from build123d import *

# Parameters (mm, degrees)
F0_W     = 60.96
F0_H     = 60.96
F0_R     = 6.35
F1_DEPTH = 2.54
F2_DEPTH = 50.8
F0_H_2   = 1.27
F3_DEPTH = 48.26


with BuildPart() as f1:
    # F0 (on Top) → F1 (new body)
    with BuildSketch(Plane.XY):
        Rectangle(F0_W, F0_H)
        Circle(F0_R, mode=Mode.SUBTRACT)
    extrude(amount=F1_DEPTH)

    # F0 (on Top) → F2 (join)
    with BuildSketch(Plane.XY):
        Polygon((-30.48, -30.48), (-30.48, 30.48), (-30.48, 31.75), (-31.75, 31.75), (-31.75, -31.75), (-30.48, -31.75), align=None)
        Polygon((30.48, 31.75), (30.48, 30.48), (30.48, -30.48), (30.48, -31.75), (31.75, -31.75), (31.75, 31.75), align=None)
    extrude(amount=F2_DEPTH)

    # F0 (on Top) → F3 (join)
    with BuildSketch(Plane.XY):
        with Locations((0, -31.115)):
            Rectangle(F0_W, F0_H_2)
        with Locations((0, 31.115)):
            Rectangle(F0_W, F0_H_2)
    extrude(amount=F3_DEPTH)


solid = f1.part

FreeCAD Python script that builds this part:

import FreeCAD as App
import Part
import Sketcher
from FreeCAD import Vector
Q = App.Units.Quantity


def add_polygon(sketch, points):
    """Adds a closed chain of lines whose ends are joined by coincident constraints."""
    first, n = sketch.GeometryCount, len(points)
    for a, b in zip(points, points[1:] + points[:1]):
        sketch.addGeometry(Part.LineSegment(App.Vector(*a, 0), App.Vector(*b, 0)), False)
    for i in range(n):
        sketch.addConstraint(Sketcher.Constraint("Coincident", first + i, 2, first + (i + 1) % n, 1))

doc = App.newDocument("Part")
params = doc.addObject("Spreadsheet::Sheet", "Params")
for row, (alias, value) in enumerate([
    ("sketch1_diameter", "0.5 in"),
    ("sketch1_width", "2.4 in"),
    ("pad1_length", "0.1 in"),
    ("sketch2_height", "2.5 in"),
    ("sketch2_width", "0.05 in"),
    ("pad2_length", "2 in"),
    ("sketch3_width", "2.4 in"),
    ("sketch3_height", "0.05 in"),
    ("pad3_length", "1.9 in"),
], start=1):
    params.set(f"A{row}", alias)
    params.set(f"B{row}", "=" + value)
    params.setAlias(f"B{row}", alias)

body = doc.addObject("PartDesign::Body", "Body")

sketch1 = body.newObject("Sketcher::SketchObject", "Sketch")
sketch1.AttachmentSupport = (doc.getObject("XY_Plane"), [""])
sketch1.MapMode = "FlatFace"
add_polygon(sketch1, [(-30, 30), (-30, -30), (30, -30), (30, 30)])
sketch1.addGeometry(Part.Circle(Vector(0, 0, 0), Vector(0, 0, 1), 6), False)
sketch1.addConstraint(Sketcher.Constraint("Vertical", 0))
sketch1.addConstraint(Sketcher.Constraint("Horizontal", 1))
sketch1.addConstraint(Sketcher.Constraint("Vertical", 2))
sketch1.addConstraint(Sketcher.Constraint("Horizontal", 3))
sketch1.addConstraint(Sketcher.Constraint("Coincident", 4, 3, -1, 1))
sketch1.addConstraint(Sketcher.Constraint("Symmetric", 0, 2, 2, 2, -1, 1))
sketch1.addConstraint(Sketcher.Constraint("Equal", 3, 0))
sketch1.addConstraint(Sketcher.Constraint("Diameter", 4, Q("0.5 in")))
sketch1.addConstraint(Sketcher.Constraint("DistanceX", 1, 1, 1, 2, Q("2.4 in")))
sketch1.setExpression("Constraints[11]", "Params.sketch1_diameter")
sketch1.setExpression("Constraints[12]", "Params.sketch1_width")
pad1 = body.newObject("PartDesign::Pad", "Pad")
pad1.Profile = sketch1
pad1.setExpression("Length", "Params.pad1_length")

sketch2 = body.newObject("Sketcher::SketchObject", "Sketch001")
sketch2.AttachmentSupport = (doc.getObject("XY_Plane"), [""])
sketch2.MapMode = "FlatFace"
add_polygon(sketch2, [(-30.5, 31.8), (-31.8, 31.8), (-31.8, -31.8), (-30.5, -31.8)])
add_polygon(sketch2, [(30.5, 31.8), (30.5, -31.8), (31.8, -31.8), (31.8, 31.8)])
sketch2.addConstraint(Sketcher.Constraint("Horizontal", 0))
sketch2.addConstraint(Sketcher.Constraint("Vertical", 1))
sketch2.addConstraint(Sketcher.Constraint("Horizontal", 2))
sketch2.addConstraint(Sketcher.Constraint("Vertical", 3))
sketch2.addConstraint(Sketcher.Constraint("Vertical", 4))
sketch2.addConstraint(Sketcher.Constraint("Horizontal", 5))
sketch2.addConstraint(Sketcher.Constraint("Vertical", 6))
sketch2.addConstraint(Sketcher.Constraint("Horizontal", 7))
sketch2.addConstraint(Sketcher.Constraint("Symmetric", 3, 2, 4, 2, -1, 1))
sketch2.addConstraint(Sketcher.Constraint("Symmetric", 1, 2, 6, 2, -1, 1))
sketch2.addConstraint(Sketcher.Constraint("Horizontal", 2, 2, 4, 2))
sketch2.addConstraint(Sketcher.Constraint("DistanceY", 1, 2, 1, 1, Q("2.5 in")))
sketch2.addConstraint(Sketcher.Constraint("DistanceX", 0, 2, 0, 1, Q("0.05 in")))
sketch2.addConstraint(Sketcher.Constraint("DistanceX", 2, 2, -1, 1, Q("1.2 in")))
sketch2.setExpression("Constraints[19]", "Params.sketch2_height")
sketch2.setExpression("Constraints[20]", "Params.sketch2_width")
pad2 = body.newObject("PartDesign::Pad", "Pad001")
pad2.Profile = sketch2
pad2.setExpression("Length", "Params.pad2_length")

sketch3 = body.newObject("Sketcher::SketchObject", "Sketch002")
sketch3.AttachmentSupport = (doc.getObject("XY_Plane"), [""])
sketch3.MapMode = "FlatFace"
add_polygon(sketch3, [(-30.5, -30.5), (-30.5, -31.8), (30.5, -31.8), (30.5, -30.5)])
add_polygon(sketch3, [(-30.5, 31.8), (-30.5, 30.5), (30.5, 30.5), (30.5, 31.8)])
sketch3.addConstraint(Sketcher.Constraint("Vertical", 0))
sketch3.addConstraint(Sketcher.Constraint("Horizontal", 1))
sketch3.addConstraint(Sketcher.Constraint("Vertical", 2))
sketch3.addConstraint(Sketcher.Constraint("Horizontal", 3))
sketch3.addConstraint(Sketcher.Constraint("Vertical", 4))
sketch3.addConstraint(Sketcher.Constraint("Horizontal", 5))
sketch3.addConstraint(Sketcher.Constraint("Vertical", 6))
sketch3.addConstraint(Sketcher.Constraint("Horizontal", 7))
sketch3.addConstraint(Sketcher.Constraint("Symmetric", 2, 2, 4, 2, -1, 1))
sketch3.addConstraint(Sketcher.Constraint("Symmetric", 0, 2, 6, 2, -1, 1))
sketch3.addConstraint(Sketcher.Constraint("Vertical", 3, 2, 4, 2))
sketch3.addConstraint(Sketcher.Constraint("DistanceX", 1, 1, 1, 2, Q("2.4 in")))
sketch3.addConstraint(Sketcher.Constraint("DistanceY", 0, 2, 0, 1, Q("0.05 in")))
sketch3.addConstraint(Sketcher.Constraint("DistanceY", 2, 2, -1, 1, Q("1.2 in")))
sketch3.setExpression("Constraints[19]", "Params.sketch3_width")
sketch3.setExpression("Constraints[20]", "Params.sketch3_height")
pad3 = body.newObject("PartDesign::Pad", "Pad002")
pad3.Profile = sketch3
pad3.setExpression("Length", "Params.pad3_length")

doc.recompute()
